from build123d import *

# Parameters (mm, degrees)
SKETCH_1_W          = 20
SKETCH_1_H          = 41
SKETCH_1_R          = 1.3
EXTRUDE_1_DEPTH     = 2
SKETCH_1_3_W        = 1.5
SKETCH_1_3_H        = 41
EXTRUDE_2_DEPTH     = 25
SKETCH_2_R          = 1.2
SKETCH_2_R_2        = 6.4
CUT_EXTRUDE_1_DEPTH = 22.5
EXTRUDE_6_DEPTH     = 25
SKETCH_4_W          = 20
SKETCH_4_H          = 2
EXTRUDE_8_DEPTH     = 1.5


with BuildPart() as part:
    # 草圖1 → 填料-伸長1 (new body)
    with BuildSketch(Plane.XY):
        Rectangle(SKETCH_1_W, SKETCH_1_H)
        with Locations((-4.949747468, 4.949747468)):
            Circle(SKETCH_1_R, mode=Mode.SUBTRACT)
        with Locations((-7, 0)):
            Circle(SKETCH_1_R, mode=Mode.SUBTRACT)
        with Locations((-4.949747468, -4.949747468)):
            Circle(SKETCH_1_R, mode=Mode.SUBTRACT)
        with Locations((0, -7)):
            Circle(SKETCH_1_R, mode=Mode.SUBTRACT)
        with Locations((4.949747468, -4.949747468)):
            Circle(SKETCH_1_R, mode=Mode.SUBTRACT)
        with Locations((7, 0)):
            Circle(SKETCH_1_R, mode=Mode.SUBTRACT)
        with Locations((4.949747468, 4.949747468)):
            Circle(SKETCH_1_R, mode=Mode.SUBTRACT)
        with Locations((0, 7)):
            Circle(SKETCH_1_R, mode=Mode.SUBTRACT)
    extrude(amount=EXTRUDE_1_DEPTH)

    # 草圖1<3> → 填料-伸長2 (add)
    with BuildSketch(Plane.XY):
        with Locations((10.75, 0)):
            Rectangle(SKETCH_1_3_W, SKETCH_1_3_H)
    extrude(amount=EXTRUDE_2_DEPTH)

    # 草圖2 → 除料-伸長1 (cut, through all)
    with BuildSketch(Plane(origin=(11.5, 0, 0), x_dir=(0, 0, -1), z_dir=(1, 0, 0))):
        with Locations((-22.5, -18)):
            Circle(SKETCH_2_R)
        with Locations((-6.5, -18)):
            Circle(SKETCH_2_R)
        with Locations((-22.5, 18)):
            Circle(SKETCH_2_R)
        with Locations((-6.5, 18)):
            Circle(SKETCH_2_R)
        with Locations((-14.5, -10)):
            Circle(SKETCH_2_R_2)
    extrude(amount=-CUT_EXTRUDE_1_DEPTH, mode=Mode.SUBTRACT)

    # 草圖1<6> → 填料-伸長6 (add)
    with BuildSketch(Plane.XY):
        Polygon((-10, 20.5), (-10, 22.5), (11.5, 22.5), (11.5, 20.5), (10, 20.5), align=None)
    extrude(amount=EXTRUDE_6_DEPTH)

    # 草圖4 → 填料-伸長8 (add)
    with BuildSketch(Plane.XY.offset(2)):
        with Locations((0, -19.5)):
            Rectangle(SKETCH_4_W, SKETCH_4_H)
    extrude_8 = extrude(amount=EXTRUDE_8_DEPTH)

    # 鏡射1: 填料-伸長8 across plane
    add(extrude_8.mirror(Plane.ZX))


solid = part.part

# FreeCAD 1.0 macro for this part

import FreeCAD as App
import Part
import Sketcher


def add_polygon(sketch, points):
    """Adds a closed chain of lines whose ends are joined by coincident constraints."""
    first, n = sketch.GeometryCount, len(points)
    for a, b in zip(points, points[1:] + points[:1]):
        sketch.addGeometry(Part.LineSegment(App.Vector(*a, 0), App.Vector(*b, 0)), False)
    for i in range(n):
        sketch.addConstraint(Sketcher.Constraint("Coincident", first + i, 2, first + (i + 1) % n, 1))

doc = App.newDocument("Part")
params = doc.addObject("Spreadsheet::Sheet", "Params")
for row, (alias, value) in enumerate([
    ("sketch1_diameter", "2.6 mm"),
    ("sketch1_width", "20 mm"),
    ("sketch1_height", "41 mm"),
    ("pad1_length", "2 mm"),
    ("sketch2_height", "41 mm"),
    ("sketch2_width", "1.5 mm"),
    ("pad2_length", "25 mm"),
    ("sketch3_diameter", "2.4 mm"),
    ("sketch3_diameter2", "12.8 mm"),
    ("sketch4_height", "2 mm"),
    ("sketch4_width", "21.5 mm"),
    ("pad3_length", "25 mm"),
    ("sketch5_width", "20 mm"),
    ("sketch5_height", "2 mm"),
    ("pad4_length", "1.5 mm"),
], start=1):
    params.set(f"A{row}", alias)
    params.set(f"B{row}", "=" + value)
    params.setAlias(f"B{row}", alias)

body = doc.addObject("PartDesign::Body", "Body")

# Sketch on XY plane
sketch1 = body.newObject("Sketcher::SketchObject", "Sketch")
sketch1.AttachmentSupport = (doc.getObject("XY_Plane"), [""])
sketch1.MapMode = "FlatFace"
add_polygon(sketch1, [(-10, 20.5), (-10, -20.5), (10, -20.5), (10, 20.5)])  # lines 0-3
sketch1.addGeometry(Part.Circle(App.Vector(-4.949747, -4.949747, 0), App.Vector(0, 0, 1), 1.3), False)  # 4
sketch1.addGeometry(Part.Circle(App.Vector(0, -7, 0), App.Vector(0, 0, 1), 1.3), False)  # 5
sketch1.addGeometry(Part.Circle(App.Vector(4.949747, -4.949747, 0), App.Vector(0, 0, 1), 1.3), False)  # 6
sketch1.addGeometry(Part.Circle(App.Vector(-7, 0, 0), App.Vector(0, 0, 1), 1.3), False)  # 7
sketch1.addGeometry(Part.Circle(App.Vector(-4.949747, 4.949747, 0), App.Vector(0, 0, 1), 1.3), False)  # 8
sketch1.addGeometry(Part.Circle(App.Vector(7, 0, 0), App.Vector(0, 0, 1), 1.3), False)  # 9
sketch1.addGeometry(Part.Circle(App.Vector(0, 7, 0), App.Vector(0, 0, 1), 1.3), False)  # 10
sketch1.addGeometry(Part.Circle(App.Vector(4.949747, 4.949747, 0), App.Vector(0, 0, 1), 1.3), False)  # 11
sketch1.addConstraint([
    Sketcher.Constraint("Vertical", 0),
    Sketcher.Constraint("Horizontal", 1),
    Sketcher.Constraint("Vertical", 2),
    Sketcher.Constraint("Horizontal", 3),
    Sketcher.Constraint("Equal", 4, 5),
    Sketcher.Constraint("Equal", 5, 6),
    Sketcher.Constraint("Equal", 6, 7),
    Sketcher.Constraint("Equal", 7, 8),
    Sketcher.Constraint("Equal", 8, 9),
    Sketcher.Constraint("Equal", 9, 10),
    Sketcher.Constraint("Equal", 10, 11),
    Sketcher.Constraint("Symmetric", 6, 3, 8, 3, -1, 1),
    Sketcher.Constraint("Symmetric", 7, 3, 9, 3, -1, 1),
    Sketcher.Constraint("Symmetric", 5, 3, 10, 3, -1, 1),
    Sketcher.Constraint("Symmetric", 4, 3, 11, 3, -1, 1),
    Sketcher.Constraint("Symmetric", 0, 2, 2, 2, -1, 1),
    Sketcher.Constraint("Symmetric", 4, 3, 6, 3, -2),
    Sketcher.Constraint("PointOnObject", 5, 3, -2),
    Sketcher.Constraint("PointOnObject", 7, 3, -1),
    Sketcher.Constraint("Diameter", 4, 2.6),
    Sketcher.Constraint("DistanceX", 1, 1, 1, 2, 20.0),
    Sketcher.Constraint("DistanceY", 0, 2, 0, 1, 41.0),
    Sketcher.Constraint("DistanceY", 5, 3, -1, 1, 7.0),
    Sketcher.Constraint("DistanceX", 7, 3, -1, 1, 7.0),
    Sketcher.Constraint("DistanceX", 4, 3, -1, 1, 4.949747),
    Sketcher.Constraint("DistanceY", 4, 3, -1, 1, 4.949747),
])
sketch1.setExpression("Constraints[23]", "Params.sketch1_diameter")
sketch1.setExpression("Constraints[24]", "Params.sketch1_width")
sketch1.setExpression("Constraints[25]", "Params.sketch1_height")
pad1 = body.newObject("PartDesign::Pad", "Pad")
pad1.Profile = sketch1
pad1.setExpression("Length", "Params.pad1_length")

# Sketch on XY plane
sketch2 = body.newObject("Sketcher::SketchObject", "Sketch001")
sketch2.AttachmentSupport = (doc.getObject("XY_Plane"), [""])
sketch2.MapMode = "FlatFace"
add_polygon(sketch2, [(10, 20.5), (10, -20.5), (11.5, -20.5), (11.5, 20.5)])  # lines 0-3
sketch2.addConstraint([
    Sketcher.Constraint("Vertical", 0),
    Sketcher.Constraint("Horizontal", 1),
    Sketcher.Constraint("Vertical", 2),
    Sketcher.Constraint("Horizontal", 3),
    Sketcher.Constraint("DistanceY", 0, 2, 0, 1, 41.0),
    Sketcher.Constraint("DistanceX", 1, 1, 1, 2, 1.5),
    Sketcher.Constraint("DistanceX", -1, 1, 0, 2, 10.0),
    Sketcher.Constraint("DistanceY", 0, 2, -1, 1, 20.5),
])
sketch2.setExpression("Constraints[8]", "Params.sketch2_height")
sketch2.setExpression("Constraints[9]", "Params.sketch2_width")
pad2 = body.newObject("PartDesign::Pad", "Pad001")
pad2.Profile = sketch2
pad2.setExpression("Length", "Params.pad2_length")

# Sketch on YZ plane
sketch3 = body.newObject("Sketcher::SketchObject", "Sketch002")
sketch3.AttachmentSupport = (doc.getObject("YZ_Plane"), [""])
sketch3.MapMode = "FlatFace"
sketch3.AttachmentOffset = App.Placement(App.Vector(0, 0, 11.5), App.Rotation())
sketch3.addGeometry([
    Part.Circle(App.Vector(-18, 22.5, 0), App.Vector(0, 0, 1), 1.2),  # 0
    Part.Circle(App.Vector(-18, 6.5, 0), App.Vector(0, 0, 1), 1.2),  # 1
    Part.Circle(App.Vector(18, 22.5, 0), App.Vector(0, 0, 1), 1.2),  # 2
    Part.Circle(App.Vector(18, 6.5, 0), App.Vector(0, 0, 1), 1.2),  # 3
    Part.Circle(App.Vector(-10, 14.5, 0), App.Vector(0, 0, 1), 6.4),  # 4
], False)
sketch3.addConstraint([
    Sketcher.Constraint("Equal", 0, 1),
    Sketcher.Constraint("Equal", 1, 2),
    Sketcher.Constraint("Equal", 2, 3),
    Sketcher.Constraint("Symmetric", 0, 3, 2, 3, -2),
    Sketcher.Constraint("Symmetric", 1, 3, 3, 3, -2),
    Sketcher.Constraint("Vertical", 0, 3, 1, 3),
    Sketcher.Constraint("Diameter", 0, 2.4),
    Sketcher.Constraint("Diameter", 4, 12.8),
    Sketcher.Constraint("DistanceX", 0, 3, -1, 1, 18.0),
    Sketcher.Constraint("DistanceX", 4, 3, -1, 1, 10.0),
    Sketcher.Constraint("DistanceY", 1, 3, 0, 3, 16.0),
    Sketcher.Constraint("DistanceY", 4, 3, 0, 3, 8.0),
    Sketcher.Constraint("DistanceY", -1, 1, 0, 3, 22.5),
])
sketch3.setExpression("Constraints[6]", "Params.sketch3_diameter")
sketch3.setExpression("Constraints[7]", "Params.sketch3_diameter2")
pocket1 = body.newObject("PartDesign::Pocket", "Pocket")
pocket1.Profile = sketch3
pocket1.Type = "ThroughAll"

# Sketch on XY plane
sketch4 = body.newObject("Sketcher::SketchObject", "Sketch003")
sketch4.AttachmentSupport = (doc.getObject("XY_Plane"), [""])
sketch4.MapMode = "FlatFace"
add_polygon(sketch4, [(-10, 22.5), (-10, 20.5), (11.5, 20.5), (11.5, 22.5)])  # lines 0-3
sketch4.addConstraint([
    Sketcher.Constraint("Vertical", 0),
    Sketcher.Constraint("Horizontal", 1),
    Sketcher.Constraint("Vertical", 2),
    Sketcher.Constraint("Horizontal", 3),
    Sketcher.Constraint("DistanceY", 0, 2, 0, 1, 2.0),
    Sketcher.Constraint("DistanceX", 1, 1, 1, 2, 21.5),
    Sketcher.Constraint("DistanceX", 0, 2, -1, 1, 10.0),
    Sketcher.Constraint("DistanceY", -1, 1, 0, 2, 20.5),
])
sketch4.setExpression("Constraints[8]", "Params.sketch4_height")
sketch4.setExpression("Constraints[9]", "Params.sketch4_width")
pad3 = body.newObject("PartDesign::Pad", "Pad002")
pad3.Profile = sketch4
pad3.setExpression("Length", "Params.pad3_length")

# Sketch on XY plane
sketch5 = body.newObject("Sketcher::SketchObject", "Sketch004")
sketch5.AttachmentSupport = (doc.getObject("XY_Plane"), [""])
sketch5.MapMode = "FlatFace"
sketch5.AttachmentOffset = App.Placement(App.Vector(0, 0, 2), App.Rotation())
add_polygon(sketch5, [(-10, -18.5), (-10, -20.5), (10, -20.5), (10, -18.5)])  # lines 0-3
sketch5.addConstraint([
    Sketcher.Constraint("Vertical", 0),
    Sketcher.Constraint("Horizontal", 1),
    Sketcher.Constraint("Vertical", 2),
    Sketcher.Constraint("Horizontal", 3),
    Sketcher.Constraint("DistanceX", 1, 1, 1, 2, 20.0),
    Sketcher.Constraint("DistanceY", 0, 2, 0, 1, 2.0),
    Sketcher.Constraint("DistanceX", 0, 2, -1, 1, 10.0),
    Sketcher.Constraint("DistanceY", 0, 2, -1, 1, 20.5),
])
sketch5.setExpression("Constraints[8]", "Params.sketch5_width")
sketch5.setExpression("Constraints[9]", "Params.sketch5_height")
pad4 = body.newObject("PartDesign::Pad", "Pad003")
pad4.Profile = sketch5
pad4.setExpression("Length", "Params.pad4_length")
doc.recompute()

mirrored = body.newObject("PartDesign::Mirrored", "Mirrored")
mirrored.Originals = [pad4]
mirrored.MirrorPlane = (doc.getObject("XZ_Plane"), [""])
body.Tip = mirrored

doc.recompute()
